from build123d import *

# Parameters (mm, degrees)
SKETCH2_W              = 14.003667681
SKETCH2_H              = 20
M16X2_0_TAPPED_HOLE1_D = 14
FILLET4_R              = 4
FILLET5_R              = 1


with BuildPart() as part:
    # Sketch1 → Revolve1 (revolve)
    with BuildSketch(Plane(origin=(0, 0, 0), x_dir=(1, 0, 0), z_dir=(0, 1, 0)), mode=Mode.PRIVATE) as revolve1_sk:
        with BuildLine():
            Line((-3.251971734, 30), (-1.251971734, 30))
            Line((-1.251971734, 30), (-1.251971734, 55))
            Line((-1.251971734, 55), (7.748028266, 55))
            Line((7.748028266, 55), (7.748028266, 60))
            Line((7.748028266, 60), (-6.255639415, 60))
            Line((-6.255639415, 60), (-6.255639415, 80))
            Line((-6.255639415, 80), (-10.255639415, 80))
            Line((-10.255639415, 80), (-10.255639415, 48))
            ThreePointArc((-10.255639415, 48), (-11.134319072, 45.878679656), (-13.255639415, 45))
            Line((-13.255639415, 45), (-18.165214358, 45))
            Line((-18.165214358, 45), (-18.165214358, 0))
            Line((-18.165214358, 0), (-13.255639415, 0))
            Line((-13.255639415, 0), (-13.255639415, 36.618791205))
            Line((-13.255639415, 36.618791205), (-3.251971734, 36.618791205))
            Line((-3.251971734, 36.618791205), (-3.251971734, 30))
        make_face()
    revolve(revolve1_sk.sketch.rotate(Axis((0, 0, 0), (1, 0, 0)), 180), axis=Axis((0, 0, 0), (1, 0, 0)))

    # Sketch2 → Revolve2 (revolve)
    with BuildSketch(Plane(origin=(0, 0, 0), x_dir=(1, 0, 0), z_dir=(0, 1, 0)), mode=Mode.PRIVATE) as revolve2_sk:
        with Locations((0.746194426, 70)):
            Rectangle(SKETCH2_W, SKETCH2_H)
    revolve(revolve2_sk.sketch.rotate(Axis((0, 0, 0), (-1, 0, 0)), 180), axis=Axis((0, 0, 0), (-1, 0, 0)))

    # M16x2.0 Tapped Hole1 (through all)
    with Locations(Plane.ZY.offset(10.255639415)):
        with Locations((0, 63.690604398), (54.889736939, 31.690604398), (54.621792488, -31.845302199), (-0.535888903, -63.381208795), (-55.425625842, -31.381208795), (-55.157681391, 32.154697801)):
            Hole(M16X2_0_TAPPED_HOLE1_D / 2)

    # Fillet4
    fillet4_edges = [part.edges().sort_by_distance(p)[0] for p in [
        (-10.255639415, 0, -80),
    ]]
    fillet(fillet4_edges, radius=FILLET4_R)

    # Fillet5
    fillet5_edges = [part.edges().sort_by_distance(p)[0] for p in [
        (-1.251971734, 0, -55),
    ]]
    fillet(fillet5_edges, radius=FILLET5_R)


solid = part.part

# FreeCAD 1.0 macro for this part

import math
import FreeCAD as App
import Part
import Sketcher

V = App.Vector


def edges_at(feature, points):
    """Names of the edges that pass closest to the given points."""
    edges = feature.Shape.Edges
    near = lambda p: min(range(len(edges)), key=lambda i: edges[i].distToShape(Part.Vertex(*p))[0])
    return sorted({f"Edge{near(p) + 1}" for p in points})

doc = App.newDocument("Part")
body = doc.addObject("PartDesign::Body", "Body")

sketch1 = doc.addObject("Sketcher::SketchObject", "Sketch")
body.addObject(sketch1)
sketch1.AttachmentSupport = (doc.XZ_Plane, [""])
sketch1.MapMode = "FlatFace"
sketch1.addGeometry(Part.LineSegment(V(-3.3, -30, 0), V(-1.3, -30, 0)), False)
sketch1.addGeometry(Part.LineSegment(V(-1.3, -30, 0), V(-1.3, -55, 0)), False)
sketch1.addGeometry(Part.LineSegment(V(-1.3, -55, 0), V(7.7, -55, 0)), False)
sketch1.addGeometry(Part.LineSegment(V(7.7, -55, 0), V(7.7, -60, 0)), False)
sketch1.addGeometry(Part.LineSegment(V(7.7, -60, 0), V(-6.3, -60, 0)), False)
sketch1.addGeometry(Part.LineSegment(V(-6.3, -60, 0), V(-6.3, -80, 0)), False)
sketch1.addGeometry(Part.LineSegment(V(-6.3, -80, 0), V(-10.3, -80, 0)), False)
sketch1.addGeometry(Part.LineSegment(V(-10.3, -80, 0), V(-10.3, -48, 0)), False)
sketch1.addGeometry(Part.ArcOfCircle(Part.Circle(V(-13.3, -48, 0), V(0, 0, 1), 3), math.radians(0), math.radians(90)), False)
sketch1.addGeometry(Part.LineSegment(V(-13.3, -45, 0), V(-18.2, -45, 0)), False)
sketch1.addGeometry(Part.LineSegment(V(-18.2, -45, 0), V(-18.2, 0, 0)), False)
sketch1.addGeometry(Part.LineSegment(V(-18.2, 0, 0), V(-13.3, 0, 0)), False)
sketch1.addGeometry(Part.LineSegment(V(-13.3, 0, 0), V(-13.3, -36.6, 0)), False)
sketch1.addGeometry(Part.LineSegment(V(-13.3, -36.6, 0), V(-3.3, -36.6, 0)), False)
sketch1.addGeometry(Part.LineSegment(V(-3.3, -36.6, 0), V(-3.3, -30, 0)), False)
sketch1.addConstraint(Sketcher.Constraint("Coincident", 0, 2, 1, 1))
sketch1.addConstraint(Sketcher.Constraint("Coincident", 1, 2, 2, 1))
sketch1.addConstraint(Sketcher.Constraint("Coincident", 2, 2, 3, 1))
sketch1.addConstraint(Sketcher.Constraint("Coincident", 3, 2, 4, 1))
sketch1.addConstraint(Sketcher.Constraint("Coincident", 4, 2, 5, 1))
sketch1.addConstraint(Sketcher.Constraint("Coincident", 5, 2, 6, 1))
sketch1.addConstraint(Sketcher.Constraint("Coincident", 6, 2, 7, 1))
sketch1.addConstraint(Sketcher.Constraint("Tangent", 7, 2, 8, 1))
sketch1.addConstraint(Sketcher.Constraint("Tangent", 8, 2, 9, 1))
sketch1.addConstraint(Sketcher.Constraint("Coincident", 9, 2, 10, 1))
sketch1.addConstraint(Sketcher.Constraint("Coincident", 10, 2, 11, 1))
sketch1.addConstraint(Sketcher.Constraint("Coincident", 11, 2, 12, 1))
sketch1.addConstraint(Sketcher.Constraint("Coincident", 12, 2, 13, 1))
sketch1.addConstraint(Sketcher.Constraint("Coincident", 13, 2, 14, 1))
sketch1.addConstraint(Sketcher.Constraint("Coincident", 14, 2, 0, 1))
sketch1.addConstraint(Sketcher.Constraint("Horizontal", 0))
sketch1.addConstraint(Sketcher.Constraint("Vertical", 1))
sketch1.addConstraint(Sketcher.Constraint("Horizontal", 2))
sketch1.addConstraint(Sketcher.Constraint("Vertical", 3))
sketch1.addConstraint(Sketcher.Constraint("Horizontal", 4))
sketch1.addConstraint(Sketcher.Constraint("Vertical", 5))
sketch1.addConstraint(Sketcher.Constraint("Horizontal", 6))
sketch1.addConstraint(Sketcher.Constraint("Vertical", 7))
sketch1.addConstraint(Sketcher.Constraint("Horizontal", 9))
sketch1.addConstraint(Sketcher.Constraint("Vertical", 10))
sketch1.addConstraint(Sketcher.Constraint("Horizontal", 11))
sketch1.addConstraint(Sketcher.Constraint("Vertical", 12))
sketch1.addConstraint(Sketcher.Constraint("Horizontal", 13))
sketch1.addConstraint(Sketcher.Constraint("Vertical", 14))
sketch1.addConstraint(Sketcher.Constraint("PointOnObject", 10, 2, -1))
sketch1.addConstraint(Sketcher.Constraint("Vertical", 8, 2, 11, 2))
sketch1.addConstraint(Sketcher.Constraint("Radius", 8, 3.0))
sketch1.addConstraint(Sketcher.Constraint("DistanceX", 0, 1, 0, 2, 2.0))
sketch1.addConstraint(Sketcher.Constraint("DistanceX", 2, 1, 2, 2, 9.0))
sketch1.addConstraint(Sketcher.Constraint("DistanceX", 6, 2, 6, 1, 4.0))
sketch1.addConstraint(Sketcher.Constraint("DistanceY", 1, 2, 1, 1, 25.0))
sketch1.addConstraint(Sketcher.Constraint("DistanceY", 3, 2, 3, 1, 5.0))
sketch1.addConstraint(Sketcher.Constraint("DistanceY", 5, 2, 5, 1, 20.0))
sketch1.addConstraint(Sketcher.Constraint("DistanceY", 7, 1, 7, 2, 32.0))
sketch1.addConstraint(Sketcher.Constraint("DistanceY", 10, 1, 10, 2, 45.0))
sketch1.addConstraint(Sketcher.Constraint("DistanceY", 12, 2, 12, 1, 36.618791))
sketch1.addConstraint(Sketcher.Constraint("DistanceX", 4, 2, 4, 1, 14.003668))
sketch1.addConstraint(Sketcher.Constraint("DistanceX", 9, 2, 9, 1, 4.909575))
sketch1.addConstraint(Sketcher.Constraint("DistanceX", 8, 3, -1, 1, 13.255639))
revolution = doc.addObject("PartDesign::Revolution", "Revolution")
body.addObject(revolution)
revolution.Profile = sketch1
revolution.ReferenceAxis = (sketch1, ["H_Axis"])
revolution.Angle = 360

sketch2 = doc.addObject("Sketcher::SketchObject", "Sketch001")
body.addObject(sketch2)
sketch2.AttachmentSupport = (doc.XZ_Plane, [""])
sketch2.MapMode = "FlatFace"
sketch2.addGeometry(Part.LineSegment(V(-6, -80, 0), V(-6, -60, 0)), False)
sketch2.addGeometry(Part.LineSegment(V(-6, -60, 0), V(8, -60, 0)), False)
sketch2.addGeometry(Part.LineSegment(V(8, -60, 0), V(8, -80, 0)), False)
sketch2.addGeometry(Part.LineSegment(V(8, -80, 0), V(-6, -80, 0)), False)
sketch2.addConstraint(Sketcher.Constraint("Coincident", 0, 2, 1, 1))
sketch2.addConstraint(Sketcher.Constraint("Coincident", 1, 2, 2, 1))
sketch2.addConstraint(Sketcher.Constraint("Coincident", 2, 2, 3, 1))
sketch2.addConstraint(Sketcher.Constraint("Coincident", 3, 2, 0, 1))
sketch2.addConstraint(Sketcher.Constraint("Vertical", 0))
sketch2.addConstraint(Sketcher.Constraint("Horizontal", 1))
sketch2.addConstraint(Sketcher.Constraint("Vertical", 2))
sketch2.addConstraint(Sketcher.Constraint("Horizontal", 3))
sketch2.addConstraint(Sketcher.Constraint("DistanceY", 0, 1, 0, 2, 20.0))
sketch2.addConstraint(Sketcher.Constraint("DistanceY", 0, 2, -1, 1, 60.0))
sketch2.addConstraint(Sketcher.Constraint("DistanceX", 1, 1, 1, 2, 14.003668))
sketch2.addConstraint(Sketcher.Constraint("DistanceX", 0, 2, -1, 1, 6.255639))
revolution2 = doc.addObject("PartDesign::Revolution", "Revolution001")
body.addObject(revolution2)
revolution2.Profile = sketch2
revolution2.ReferenceAxis = (sketch2, ["H_Axis"])
revolution2.Angle = 360

sketch3 = doc.addObject("Sketcher::SketchObject", "Sketch002")
body.addObject(sketch3)
sketch3.AttachmentSupport = (doc.YZ_Plane, [""])
sketch3.MapMode = "FlatFace"
sketch3.AttachmentOffset = App.Placement(V(0, 0, -10.255639), App.Rotation())
sketch3.addGeometry(Part.Circle(V(64, 0, 0), V(0, 0, 1), 7), False)
sketch3.addGeometry(Part.Circle(V(32, 55, 0), V(0, 0, 1), 7), False)
sketch3.addGeometry(Part.Circle(V(-32, 55, 0), V(0, 0, 1), 7), False)
sketch3.addGeometry(Part.Circle(V(-63, -1, 0), V(0, 0, 1), 7), False)
sketch3.addGeometry(Part.Circle(V(-31, -55, 0), V(0, 0, 1), 7), False)
sketch3.addGeometry(Part.Circle(V(32, -55, 0), V(0, 0, 1), 7), False)
sketch3.addConstraint(Sketcher.Constraint("Equal", 0, 1))
sketch3.addConstraint(Sketcher.Constraint("Equal", 1, 2))
sketch3.addConstraint(Sketcher.Constraint("Equal", 2, 3))
sketch3.addConstraint(Sketcher.Constraint("Equal", 3, 4))
sketch3.addConstraint(Sketcher.Constraint("Equal", 4, 5))
sketch3.addConstraint(Sketcher.Constraint("PointOnObject", 0, 3, -1))
sketch3.addConstraint(Sketcher.Constraint("Diameter", 0, 14.0))
sketch3.addConstraint(Sketcher.Constraint("DistanceX", 1, 3, 0, 3, 32.0))
sketch3.addConstraint(Sketcher.Constraint("DistanceX", 3, 3, 4, 3, 32.0))
sketch3.addConstraint(Sketcher.Constraint("DistanceX", 2, 3, 5, 3, 64.0))
sketch3.addConstraint(Sketcher.Constraint("DistanceX", 3, 3, -1, 1, 63.381209))
sketch3.addConstraint(Sketcher.Constraint("DistanceY", 3, 3, -1, 1, 0.535889))
sketch3.addConstraint(Sketcher.Constraint("DistanceY", 5, 3, -1, 1, 55.157681))
sketch3.addConstraint(Sketcher.Constraint("DistanceY", 3, 3, 2, 3, 55.157681))
sketch3.addConstraint(Sketcher.Constraint("DistanceY", 4, 3, 2, 3, 110.047418))
sketch3.addConstraint(Sketcher.Constraint("DistanceY", 5, 3, 1, 3, 110.047418))
sketch3.addConstraint(Sketcher.Constraint("DistanceX", -1, 1, 0, 3, 63.690604))
sketch3.addConstraint(Sketcher.Constraint("DistanceX", 2, 3, -1, 1, 31.845302))
doc.recompute()
hole = doc.addObject("PartDesign::Hole", "Hole")
body.addObject(hole)
hole.Profile = sketch3
hole.ThreadType = "None"
hole.Diameter = 14
hole.DepthType = "ThroughAll"
hole.Reversed = True
doc.recompute()

fillet = doc.addObject("PartDesign::Fillet", "Fillet")
body.addObject(fillet)
fillet.Base = (hole, edges_at(hole, [(-10.256, 0, -80)]))
fillet.Radius = 4
doc.recompute()

fillet2 = doc.addObject("PartDesign::Fillet", "Fillet001")
body.addObject(fillet2)
fillet2.Base = (fillet, edges_at(fillet, [(-1.252, 0, -55)]))
fillet2.Radius = 1

doc.recompute()
